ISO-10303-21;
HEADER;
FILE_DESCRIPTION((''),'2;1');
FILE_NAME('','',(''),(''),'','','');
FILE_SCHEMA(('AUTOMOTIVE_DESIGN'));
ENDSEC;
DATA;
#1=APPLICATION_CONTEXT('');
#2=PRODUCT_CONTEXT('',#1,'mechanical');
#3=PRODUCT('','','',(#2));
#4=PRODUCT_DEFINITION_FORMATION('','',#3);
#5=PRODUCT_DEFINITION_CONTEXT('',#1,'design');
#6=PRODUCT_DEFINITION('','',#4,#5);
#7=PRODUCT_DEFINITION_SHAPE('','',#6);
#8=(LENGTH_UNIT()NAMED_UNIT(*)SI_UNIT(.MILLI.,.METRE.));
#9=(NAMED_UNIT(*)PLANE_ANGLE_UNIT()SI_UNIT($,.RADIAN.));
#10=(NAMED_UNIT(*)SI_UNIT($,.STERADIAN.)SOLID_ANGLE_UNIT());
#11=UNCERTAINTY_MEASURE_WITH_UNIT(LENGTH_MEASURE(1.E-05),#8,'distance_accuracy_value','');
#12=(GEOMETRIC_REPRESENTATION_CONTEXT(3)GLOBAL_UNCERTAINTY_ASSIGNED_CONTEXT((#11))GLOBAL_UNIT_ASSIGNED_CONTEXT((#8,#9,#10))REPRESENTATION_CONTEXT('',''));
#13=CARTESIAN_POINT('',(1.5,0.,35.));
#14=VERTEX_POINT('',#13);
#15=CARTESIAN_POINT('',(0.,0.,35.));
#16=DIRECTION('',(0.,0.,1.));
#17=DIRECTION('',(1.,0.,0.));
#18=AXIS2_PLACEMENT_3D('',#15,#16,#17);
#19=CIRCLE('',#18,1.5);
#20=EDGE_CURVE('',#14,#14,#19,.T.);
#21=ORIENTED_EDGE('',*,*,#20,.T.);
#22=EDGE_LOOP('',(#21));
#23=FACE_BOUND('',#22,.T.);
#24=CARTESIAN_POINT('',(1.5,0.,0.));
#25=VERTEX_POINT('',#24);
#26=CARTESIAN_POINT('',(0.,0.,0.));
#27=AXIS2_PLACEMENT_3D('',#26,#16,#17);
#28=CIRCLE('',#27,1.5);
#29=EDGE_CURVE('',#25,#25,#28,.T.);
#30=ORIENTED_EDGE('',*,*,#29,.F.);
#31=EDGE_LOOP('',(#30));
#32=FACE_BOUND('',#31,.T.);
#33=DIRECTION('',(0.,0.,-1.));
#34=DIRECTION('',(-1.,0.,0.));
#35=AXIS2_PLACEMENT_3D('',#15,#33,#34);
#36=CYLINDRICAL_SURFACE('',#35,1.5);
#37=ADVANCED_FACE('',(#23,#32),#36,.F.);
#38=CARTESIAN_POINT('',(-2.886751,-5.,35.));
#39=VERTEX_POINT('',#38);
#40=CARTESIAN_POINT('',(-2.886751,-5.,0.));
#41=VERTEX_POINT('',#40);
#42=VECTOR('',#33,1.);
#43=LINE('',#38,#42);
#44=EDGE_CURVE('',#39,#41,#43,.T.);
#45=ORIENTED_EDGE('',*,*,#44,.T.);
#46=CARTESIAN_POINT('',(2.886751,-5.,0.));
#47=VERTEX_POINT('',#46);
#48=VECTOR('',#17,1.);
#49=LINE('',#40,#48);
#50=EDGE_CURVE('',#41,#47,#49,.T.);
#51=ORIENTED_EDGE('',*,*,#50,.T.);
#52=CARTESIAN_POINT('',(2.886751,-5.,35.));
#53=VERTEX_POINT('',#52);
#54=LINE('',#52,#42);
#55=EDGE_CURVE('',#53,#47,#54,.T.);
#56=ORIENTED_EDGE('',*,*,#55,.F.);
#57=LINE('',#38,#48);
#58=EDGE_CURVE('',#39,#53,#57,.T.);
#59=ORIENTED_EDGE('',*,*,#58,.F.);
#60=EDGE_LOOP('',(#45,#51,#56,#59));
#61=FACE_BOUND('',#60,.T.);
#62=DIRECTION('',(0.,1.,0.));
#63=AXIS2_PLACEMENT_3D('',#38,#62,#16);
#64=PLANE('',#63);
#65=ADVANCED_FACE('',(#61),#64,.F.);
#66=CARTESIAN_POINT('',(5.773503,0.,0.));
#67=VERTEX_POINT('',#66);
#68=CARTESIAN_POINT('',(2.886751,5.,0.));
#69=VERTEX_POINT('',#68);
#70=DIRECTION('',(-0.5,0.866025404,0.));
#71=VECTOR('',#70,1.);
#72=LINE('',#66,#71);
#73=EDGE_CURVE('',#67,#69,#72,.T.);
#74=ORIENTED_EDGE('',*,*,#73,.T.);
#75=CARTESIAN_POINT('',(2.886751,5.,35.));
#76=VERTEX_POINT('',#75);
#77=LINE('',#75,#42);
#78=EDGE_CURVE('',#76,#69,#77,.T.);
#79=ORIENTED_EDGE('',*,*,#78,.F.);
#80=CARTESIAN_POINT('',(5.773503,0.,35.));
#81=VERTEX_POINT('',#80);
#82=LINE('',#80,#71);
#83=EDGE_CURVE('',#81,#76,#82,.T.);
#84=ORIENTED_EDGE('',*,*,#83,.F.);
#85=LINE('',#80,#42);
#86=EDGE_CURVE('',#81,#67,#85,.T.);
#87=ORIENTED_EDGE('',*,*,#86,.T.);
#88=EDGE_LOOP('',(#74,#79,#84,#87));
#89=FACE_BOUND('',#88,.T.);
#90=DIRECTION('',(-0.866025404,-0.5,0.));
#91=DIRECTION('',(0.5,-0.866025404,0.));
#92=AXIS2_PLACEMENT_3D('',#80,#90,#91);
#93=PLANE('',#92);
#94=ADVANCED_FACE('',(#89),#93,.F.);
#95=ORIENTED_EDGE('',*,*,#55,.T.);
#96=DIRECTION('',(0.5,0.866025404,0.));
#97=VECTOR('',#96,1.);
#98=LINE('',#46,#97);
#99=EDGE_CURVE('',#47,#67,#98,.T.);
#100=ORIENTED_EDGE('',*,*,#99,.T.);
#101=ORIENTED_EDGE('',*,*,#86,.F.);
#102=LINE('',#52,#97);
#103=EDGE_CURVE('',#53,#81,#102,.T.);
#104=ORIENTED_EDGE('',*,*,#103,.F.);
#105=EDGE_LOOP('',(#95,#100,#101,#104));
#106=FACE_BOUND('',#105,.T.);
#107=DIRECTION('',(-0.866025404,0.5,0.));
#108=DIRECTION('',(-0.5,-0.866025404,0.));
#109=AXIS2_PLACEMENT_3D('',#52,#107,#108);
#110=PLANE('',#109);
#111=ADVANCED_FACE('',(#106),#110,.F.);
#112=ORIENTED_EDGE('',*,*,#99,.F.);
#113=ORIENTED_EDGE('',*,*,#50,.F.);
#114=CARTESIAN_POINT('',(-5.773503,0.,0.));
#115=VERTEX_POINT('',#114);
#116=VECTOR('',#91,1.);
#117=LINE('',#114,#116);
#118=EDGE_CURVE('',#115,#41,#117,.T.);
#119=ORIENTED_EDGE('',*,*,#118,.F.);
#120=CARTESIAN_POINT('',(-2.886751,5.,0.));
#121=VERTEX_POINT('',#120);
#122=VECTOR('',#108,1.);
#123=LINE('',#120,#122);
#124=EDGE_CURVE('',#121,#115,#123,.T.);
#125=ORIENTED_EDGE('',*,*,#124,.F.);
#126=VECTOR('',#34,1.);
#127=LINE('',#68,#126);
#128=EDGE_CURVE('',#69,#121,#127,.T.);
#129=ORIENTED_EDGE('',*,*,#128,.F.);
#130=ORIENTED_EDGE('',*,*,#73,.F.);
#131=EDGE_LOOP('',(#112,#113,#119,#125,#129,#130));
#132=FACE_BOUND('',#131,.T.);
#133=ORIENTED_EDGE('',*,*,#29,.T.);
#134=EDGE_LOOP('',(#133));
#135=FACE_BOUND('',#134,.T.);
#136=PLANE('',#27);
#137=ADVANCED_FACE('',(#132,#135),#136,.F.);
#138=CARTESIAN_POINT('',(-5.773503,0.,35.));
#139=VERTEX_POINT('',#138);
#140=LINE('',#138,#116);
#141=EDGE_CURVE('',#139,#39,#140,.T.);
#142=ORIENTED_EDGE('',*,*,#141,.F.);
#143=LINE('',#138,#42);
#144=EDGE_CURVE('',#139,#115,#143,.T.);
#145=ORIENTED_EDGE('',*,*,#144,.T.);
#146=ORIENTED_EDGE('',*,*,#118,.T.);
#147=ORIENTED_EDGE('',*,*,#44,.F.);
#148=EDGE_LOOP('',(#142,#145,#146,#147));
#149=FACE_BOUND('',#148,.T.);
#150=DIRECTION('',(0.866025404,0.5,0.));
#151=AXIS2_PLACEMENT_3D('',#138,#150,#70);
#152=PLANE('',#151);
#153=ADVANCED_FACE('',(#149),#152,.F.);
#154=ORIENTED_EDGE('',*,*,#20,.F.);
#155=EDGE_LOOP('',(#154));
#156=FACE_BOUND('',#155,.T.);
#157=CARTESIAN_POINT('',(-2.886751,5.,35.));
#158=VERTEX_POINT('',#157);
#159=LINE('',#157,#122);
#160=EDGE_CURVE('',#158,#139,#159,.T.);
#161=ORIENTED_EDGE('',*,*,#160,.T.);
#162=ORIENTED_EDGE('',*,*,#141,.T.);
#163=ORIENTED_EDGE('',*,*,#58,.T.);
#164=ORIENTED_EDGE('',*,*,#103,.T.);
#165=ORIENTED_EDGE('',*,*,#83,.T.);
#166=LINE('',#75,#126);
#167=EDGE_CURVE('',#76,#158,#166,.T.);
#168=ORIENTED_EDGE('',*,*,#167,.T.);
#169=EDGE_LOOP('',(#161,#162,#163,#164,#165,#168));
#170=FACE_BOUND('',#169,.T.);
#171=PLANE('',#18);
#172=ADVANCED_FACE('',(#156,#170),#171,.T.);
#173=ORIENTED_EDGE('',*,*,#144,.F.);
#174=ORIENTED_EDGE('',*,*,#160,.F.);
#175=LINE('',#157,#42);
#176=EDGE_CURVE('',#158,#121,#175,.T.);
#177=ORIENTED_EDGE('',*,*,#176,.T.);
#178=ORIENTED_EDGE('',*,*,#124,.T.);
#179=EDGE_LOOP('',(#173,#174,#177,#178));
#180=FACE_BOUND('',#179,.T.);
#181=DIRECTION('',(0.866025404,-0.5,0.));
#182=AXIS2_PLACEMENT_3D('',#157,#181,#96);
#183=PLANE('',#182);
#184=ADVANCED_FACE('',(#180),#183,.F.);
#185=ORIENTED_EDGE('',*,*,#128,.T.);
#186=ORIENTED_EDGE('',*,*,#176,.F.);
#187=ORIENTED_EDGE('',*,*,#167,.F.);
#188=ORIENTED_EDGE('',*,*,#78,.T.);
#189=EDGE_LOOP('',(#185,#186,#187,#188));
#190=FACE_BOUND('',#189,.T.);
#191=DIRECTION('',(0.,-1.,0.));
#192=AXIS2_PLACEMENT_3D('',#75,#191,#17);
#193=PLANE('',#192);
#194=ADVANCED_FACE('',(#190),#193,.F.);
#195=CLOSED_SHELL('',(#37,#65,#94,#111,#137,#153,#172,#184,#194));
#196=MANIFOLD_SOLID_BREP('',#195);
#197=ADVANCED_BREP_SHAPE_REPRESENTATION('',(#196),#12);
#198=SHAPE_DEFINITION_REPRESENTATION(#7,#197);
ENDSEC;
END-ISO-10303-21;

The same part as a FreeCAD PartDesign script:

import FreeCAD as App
import Part
import Sketcher

V = App.Vector
Q = App.Units.Quantity


def add_polygon(sketch, points):
    """Adds a closed chain of lines whose ends are joined by coincident constraints."""
    first, n = sketch.GeometryCount, len(points)
    for a, b in zip(points, points[1:] + points[:1]):
        sketch.addGeometry(Part.LineSegment(App.Vector(*a, 0), App.Vector(*b, 0)), False)
    for i in range(n):
        sketch.addConstraint(Sketcher.Constraint("Coincident", first + i, 2, first + (i + 1) % n, 1))

doc = App.newDocument("Part")
body = doc.addObject("PartDesign::Body", "Body")

sketch1 = doc.addObject("Sketcher::SketchObject", "Sketch")
body.addObject(sketch1)
sketch1.AttachmentSupport = (doc.XY_Plane, [""])
sketch1.MapMode = "FlatFace"
add_polygon(sketch1, [(5.8, 0), (2.9, 5), (-2.9, 5), (-5.8, 0), (-2.9, -5), (2.9, -5)])
sketch1.addGeometry(Part.Circle(V(0, 0, 0), V(0, 0, 1), 1.5), False)
sketch1.addConstraint([
    Sketcher.Constraint("Horizontal", 1),
    Sketcher.Constraint("Horizontal", 4),
    Sketcher.Constraint("Coincident", 6, 3, -1, 1),
    Sketcher.Constraint("Symmetric", 0, 2, 3, 2, -1, 1),
    Sketcher.Constraint("Symmetric", 2, 2, 5, 2, -1, 1),
    Sketcher.Constraint("PointOnObject", 2, 2, -1),
    Sketcher.Constraint("Parallel", 2, 5),
    Sketcher.Constraint("Vertical", 1, 2, 3, 2),
    Sketcher.Constraint("Diameter", 6, Q("3 mm")),
    Sketcher.Constraint("Angle", 0, Q("120 deg")),
    Sketcher.Constraint("DistanceY", -1, 1, 0, 2, Q("5 mm")),
    Sketcher.Constraint("DistanceX", 1, 2, 1, 1, Q("5.773503 mm")),
])
pad1 = doc.addObject("PartDesign::Pad", "Pad")
body.addObject(pad1)
pad1.Profile = sketch1
pad1.Length = 35

doc.recompute()
